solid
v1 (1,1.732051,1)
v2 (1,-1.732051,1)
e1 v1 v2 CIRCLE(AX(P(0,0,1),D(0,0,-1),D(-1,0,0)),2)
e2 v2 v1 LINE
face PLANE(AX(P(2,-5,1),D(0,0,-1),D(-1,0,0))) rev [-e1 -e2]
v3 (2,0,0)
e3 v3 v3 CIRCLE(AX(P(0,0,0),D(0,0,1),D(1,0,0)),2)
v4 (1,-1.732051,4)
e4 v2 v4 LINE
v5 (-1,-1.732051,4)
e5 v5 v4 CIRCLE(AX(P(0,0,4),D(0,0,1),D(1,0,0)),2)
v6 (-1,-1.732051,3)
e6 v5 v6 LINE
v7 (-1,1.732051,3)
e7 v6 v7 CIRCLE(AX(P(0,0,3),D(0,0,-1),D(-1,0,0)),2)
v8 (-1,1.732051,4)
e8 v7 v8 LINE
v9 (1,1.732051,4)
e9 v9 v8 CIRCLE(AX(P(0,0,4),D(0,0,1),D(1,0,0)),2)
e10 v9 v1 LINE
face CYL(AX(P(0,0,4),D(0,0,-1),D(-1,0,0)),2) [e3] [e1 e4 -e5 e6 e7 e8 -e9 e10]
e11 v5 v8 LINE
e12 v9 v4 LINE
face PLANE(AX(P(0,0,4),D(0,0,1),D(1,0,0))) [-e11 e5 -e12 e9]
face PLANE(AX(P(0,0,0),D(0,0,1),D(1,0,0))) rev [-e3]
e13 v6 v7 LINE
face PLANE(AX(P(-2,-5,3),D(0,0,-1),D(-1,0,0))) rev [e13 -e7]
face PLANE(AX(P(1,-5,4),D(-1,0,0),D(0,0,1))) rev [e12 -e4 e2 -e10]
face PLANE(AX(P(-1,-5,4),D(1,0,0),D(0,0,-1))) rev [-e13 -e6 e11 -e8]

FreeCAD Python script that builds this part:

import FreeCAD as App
import Part
import Sketcher
from FreeCAD import Vector
Q = App.Units.Quantity


def add_polygon(sketch, points):
    """Adds a closed chain of lines whose ends are joined by coincident constraints."""
    first, n = sketch.GeometryCount, len(points)
    for a, b in zip(points, points[1:] + points[:1]):
        sketch.addGeometry(Part.LineSegment(App.Vector(*a, 0), App.Vector(*b, 0)), False)
    for i in range(n):
        sketch.addConstraint(Sketcher.Constraint("Coincident", first + i, 2, first + (i + 1) % n, 1))

doc = App.newDocument("Part")
body = doc.addObject("PartDesign::Body", "Body")

# Sketch on XY plane
sketch1 = body.newObject("Sketcher::SketchObject", "Sketch")
sketch1.AttachmentSupport = (doc.getObject("XY_Plane"), [""])
sketch1.MapMode = "FlatFace"
sketch1.addGeometry(Part.Circle(Vector(0, 0, 0), Vector(0, 0, 1), 2), False)
sketch1.addConstraint([
    Sketcher.Constraint("Coincident", 0, 3, -1, 1),
    Sketcher.Constraint("Diameter", 0, Q("4 mm")),
])
pad1 = body.newObject("PartDesign::Pad", "Pad")
pad1.Profile = sketch1
pad1.Length = 4

# Sketch on XZ plane
sketch2 = body.newObject("Sketcher::SketchObject", "Sketch001")
sketch2.AttachmentSupport = (doc.getObject("XZ_Plane"), [""])
sketch2.MapMode = "FlatFace"
add_polygon(sketch2, [(1, 1), (1, 4), (2, 4), (2, 1)])  # lines 0-3
add_polygon(sketch2, [(-2, 3), (-2, 4), (-1, 4), (-1, 3)])  # lines 4-7
sketch2.addConstraint([
    Sketcher.Constraint("Vertical", 0),
    Sketcher.Constraint("Horizontal", 1),
    Sketcher.Constraint("Vertical", 2),
    Sketcher.Constraint("Horizontal", 3),
    Sketcher.Constraint("Vertical", 4),
    Sketcher.Constraint("Horizontal", 5),
    Sketcher.Constraint("Vertical", 6),
    Sketcher.Constraint("Horizontal", 7),
    Sketcher.Constraint("Symmetric", 1, 2, 4, 2, -2),
    Sketcher.Constraint("Equal", 3, 5),
    Sketcher.Constraint("Equal", 7, 4),
    Sketcher.Constraint("DistanceX", 1, 1, 1, 2, Q("1 mm")),
    Sketcher.Constraint("DistanceY", 0, 1, 0, 2, Q("3 mm")),
    Sketcher.Constraint("DistanceX", -1, 1, 0, 2, Q("1 mm")),
    Sketcher.Constraint("DistanceY", -1, 1, 0, 2, Q("4 mm")),
])
pocket1 = body.newObject("PartDesign::Pocket", "Pocket")
pocket1.Profile = sketch2
pocket1.Length = 10
pocket1.Midplane = True

doc.recompute()
